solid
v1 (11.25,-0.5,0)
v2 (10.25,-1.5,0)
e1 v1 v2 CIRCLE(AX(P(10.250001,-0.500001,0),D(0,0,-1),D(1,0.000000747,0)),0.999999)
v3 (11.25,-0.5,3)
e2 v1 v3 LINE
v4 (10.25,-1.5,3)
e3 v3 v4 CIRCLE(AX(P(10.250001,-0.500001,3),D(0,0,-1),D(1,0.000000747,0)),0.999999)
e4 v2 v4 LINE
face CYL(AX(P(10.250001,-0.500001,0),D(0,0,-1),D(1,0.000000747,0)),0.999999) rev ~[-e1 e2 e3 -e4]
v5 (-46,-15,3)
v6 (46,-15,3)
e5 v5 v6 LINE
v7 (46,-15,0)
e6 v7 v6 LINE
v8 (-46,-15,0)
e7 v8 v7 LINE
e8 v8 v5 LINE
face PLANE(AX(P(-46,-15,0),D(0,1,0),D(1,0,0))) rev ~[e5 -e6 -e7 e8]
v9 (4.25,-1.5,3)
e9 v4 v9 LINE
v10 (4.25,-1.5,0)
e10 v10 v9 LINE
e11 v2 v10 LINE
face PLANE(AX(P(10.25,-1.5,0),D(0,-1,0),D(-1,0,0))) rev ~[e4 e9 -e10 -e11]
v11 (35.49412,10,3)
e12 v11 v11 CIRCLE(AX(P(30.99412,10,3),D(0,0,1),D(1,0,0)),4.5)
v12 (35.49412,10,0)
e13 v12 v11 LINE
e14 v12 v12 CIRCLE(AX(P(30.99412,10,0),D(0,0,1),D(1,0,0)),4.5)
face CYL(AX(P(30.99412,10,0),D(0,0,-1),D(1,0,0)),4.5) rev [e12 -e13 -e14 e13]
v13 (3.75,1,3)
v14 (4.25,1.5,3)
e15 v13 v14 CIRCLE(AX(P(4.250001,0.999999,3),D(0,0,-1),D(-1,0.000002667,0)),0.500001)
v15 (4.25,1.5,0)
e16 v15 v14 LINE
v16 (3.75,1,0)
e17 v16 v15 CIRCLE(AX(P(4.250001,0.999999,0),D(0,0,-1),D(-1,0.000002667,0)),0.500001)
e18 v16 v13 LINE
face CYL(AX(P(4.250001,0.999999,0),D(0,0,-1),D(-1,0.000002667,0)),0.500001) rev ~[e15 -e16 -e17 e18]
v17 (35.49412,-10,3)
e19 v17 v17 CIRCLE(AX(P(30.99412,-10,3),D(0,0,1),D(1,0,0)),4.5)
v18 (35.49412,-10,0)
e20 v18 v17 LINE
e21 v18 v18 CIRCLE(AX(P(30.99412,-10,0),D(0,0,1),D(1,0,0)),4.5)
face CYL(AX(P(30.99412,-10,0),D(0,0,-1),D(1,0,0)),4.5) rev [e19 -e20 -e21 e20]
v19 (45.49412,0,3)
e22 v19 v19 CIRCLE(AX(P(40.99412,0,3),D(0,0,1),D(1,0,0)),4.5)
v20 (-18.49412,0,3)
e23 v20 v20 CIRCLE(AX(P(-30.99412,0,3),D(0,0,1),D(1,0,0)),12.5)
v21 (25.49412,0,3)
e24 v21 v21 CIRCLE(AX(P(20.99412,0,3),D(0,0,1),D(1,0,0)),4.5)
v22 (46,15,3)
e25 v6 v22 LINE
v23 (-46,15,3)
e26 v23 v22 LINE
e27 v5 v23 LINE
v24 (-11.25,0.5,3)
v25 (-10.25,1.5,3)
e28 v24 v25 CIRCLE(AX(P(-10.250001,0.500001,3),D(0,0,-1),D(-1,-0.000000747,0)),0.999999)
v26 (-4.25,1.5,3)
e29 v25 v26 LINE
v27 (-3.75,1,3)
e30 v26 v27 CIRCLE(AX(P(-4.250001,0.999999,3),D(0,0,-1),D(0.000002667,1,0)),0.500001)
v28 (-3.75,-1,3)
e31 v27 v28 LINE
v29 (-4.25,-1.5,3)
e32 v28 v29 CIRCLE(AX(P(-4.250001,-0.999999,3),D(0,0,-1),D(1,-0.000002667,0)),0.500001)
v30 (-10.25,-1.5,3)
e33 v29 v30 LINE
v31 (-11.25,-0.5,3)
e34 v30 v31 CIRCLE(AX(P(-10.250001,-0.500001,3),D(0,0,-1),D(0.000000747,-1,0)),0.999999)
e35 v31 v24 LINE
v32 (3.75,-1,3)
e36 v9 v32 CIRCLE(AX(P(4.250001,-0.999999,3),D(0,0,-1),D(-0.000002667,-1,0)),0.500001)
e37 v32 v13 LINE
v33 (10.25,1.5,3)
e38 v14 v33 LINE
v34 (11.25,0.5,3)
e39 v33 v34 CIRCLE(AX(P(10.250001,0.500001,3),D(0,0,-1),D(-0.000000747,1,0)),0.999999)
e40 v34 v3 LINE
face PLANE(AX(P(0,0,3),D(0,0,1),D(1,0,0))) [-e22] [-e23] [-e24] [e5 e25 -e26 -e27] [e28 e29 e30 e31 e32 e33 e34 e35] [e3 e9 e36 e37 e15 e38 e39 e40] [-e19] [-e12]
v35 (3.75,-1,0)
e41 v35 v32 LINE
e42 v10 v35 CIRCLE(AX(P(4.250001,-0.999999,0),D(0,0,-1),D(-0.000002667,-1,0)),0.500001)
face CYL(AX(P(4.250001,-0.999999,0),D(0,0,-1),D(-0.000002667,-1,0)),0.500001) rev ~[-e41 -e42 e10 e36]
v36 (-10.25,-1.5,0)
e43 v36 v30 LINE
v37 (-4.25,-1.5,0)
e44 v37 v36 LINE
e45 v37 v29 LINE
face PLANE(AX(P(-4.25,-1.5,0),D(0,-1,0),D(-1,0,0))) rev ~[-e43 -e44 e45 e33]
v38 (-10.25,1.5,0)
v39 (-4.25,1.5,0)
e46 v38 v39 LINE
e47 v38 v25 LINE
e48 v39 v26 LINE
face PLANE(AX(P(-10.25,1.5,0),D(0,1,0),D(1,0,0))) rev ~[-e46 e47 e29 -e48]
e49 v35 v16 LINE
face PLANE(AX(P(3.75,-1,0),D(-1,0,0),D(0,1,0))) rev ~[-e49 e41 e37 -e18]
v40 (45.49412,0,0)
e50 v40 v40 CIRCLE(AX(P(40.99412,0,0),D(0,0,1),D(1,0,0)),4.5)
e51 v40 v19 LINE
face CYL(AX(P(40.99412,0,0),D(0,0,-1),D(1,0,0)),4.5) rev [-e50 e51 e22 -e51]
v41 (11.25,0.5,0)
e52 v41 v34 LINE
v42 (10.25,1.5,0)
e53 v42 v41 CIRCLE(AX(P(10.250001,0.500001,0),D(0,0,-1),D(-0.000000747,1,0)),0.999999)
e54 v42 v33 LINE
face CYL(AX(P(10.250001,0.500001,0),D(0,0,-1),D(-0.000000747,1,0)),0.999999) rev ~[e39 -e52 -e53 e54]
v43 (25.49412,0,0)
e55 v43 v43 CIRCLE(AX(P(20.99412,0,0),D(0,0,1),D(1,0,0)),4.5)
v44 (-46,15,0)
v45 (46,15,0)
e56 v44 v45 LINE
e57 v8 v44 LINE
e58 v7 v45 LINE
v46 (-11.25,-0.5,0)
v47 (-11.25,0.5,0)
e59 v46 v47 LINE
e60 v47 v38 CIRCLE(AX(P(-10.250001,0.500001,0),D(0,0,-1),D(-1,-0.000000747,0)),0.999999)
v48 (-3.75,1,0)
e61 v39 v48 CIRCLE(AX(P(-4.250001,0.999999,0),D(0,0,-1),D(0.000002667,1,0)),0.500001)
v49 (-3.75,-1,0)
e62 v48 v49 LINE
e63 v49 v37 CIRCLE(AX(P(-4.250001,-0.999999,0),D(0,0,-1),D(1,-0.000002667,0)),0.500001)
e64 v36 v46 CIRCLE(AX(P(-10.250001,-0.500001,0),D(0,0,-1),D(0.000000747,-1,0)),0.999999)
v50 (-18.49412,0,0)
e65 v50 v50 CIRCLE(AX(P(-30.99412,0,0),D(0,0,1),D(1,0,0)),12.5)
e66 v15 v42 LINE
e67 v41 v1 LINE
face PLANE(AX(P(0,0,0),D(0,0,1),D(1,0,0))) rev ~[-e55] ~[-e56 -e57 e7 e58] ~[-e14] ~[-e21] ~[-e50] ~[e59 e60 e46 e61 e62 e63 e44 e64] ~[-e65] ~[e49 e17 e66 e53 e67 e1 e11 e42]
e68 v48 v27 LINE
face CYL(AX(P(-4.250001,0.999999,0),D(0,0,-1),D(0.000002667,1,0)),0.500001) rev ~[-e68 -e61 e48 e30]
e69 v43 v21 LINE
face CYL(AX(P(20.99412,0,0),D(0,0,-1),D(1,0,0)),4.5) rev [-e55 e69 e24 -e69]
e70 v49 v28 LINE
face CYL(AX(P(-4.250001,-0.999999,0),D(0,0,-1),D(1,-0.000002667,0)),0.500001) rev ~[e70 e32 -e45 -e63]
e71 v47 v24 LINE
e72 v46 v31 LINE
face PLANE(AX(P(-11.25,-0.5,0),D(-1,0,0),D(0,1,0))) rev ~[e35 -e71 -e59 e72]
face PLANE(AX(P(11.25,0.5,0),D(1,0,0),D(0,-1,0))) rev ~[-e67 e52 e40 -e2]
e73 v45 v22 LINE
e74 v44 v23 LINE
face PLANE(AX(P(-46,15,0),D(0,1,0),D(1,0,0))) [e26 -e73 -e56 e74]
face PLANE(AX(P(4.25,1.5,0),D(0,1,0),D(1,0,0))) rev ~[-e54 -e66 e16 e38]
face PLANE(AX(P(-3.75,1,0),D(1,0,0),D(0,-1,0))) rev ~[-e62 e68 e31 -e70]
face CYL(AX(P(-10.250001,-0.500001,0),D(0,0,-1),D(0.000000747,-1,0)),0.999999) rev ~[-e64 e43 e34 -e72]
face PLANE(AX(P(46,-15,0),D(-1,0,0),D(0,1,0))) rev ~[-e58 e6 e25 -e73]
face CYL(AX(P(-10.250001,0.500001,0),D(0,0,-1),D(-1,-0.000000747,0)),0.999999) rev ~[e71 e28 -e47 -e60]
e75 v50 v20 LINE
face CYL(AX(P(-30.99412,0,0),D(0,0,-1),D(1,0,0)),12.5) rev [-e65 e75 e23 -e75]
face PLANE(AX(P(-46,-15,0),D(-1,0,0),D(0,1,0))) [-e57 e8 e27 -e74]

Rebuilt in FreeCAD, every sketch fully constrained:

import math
import FreeCAD as App
import Part
import Sketcher
from FreeCAD import Vector

doc = App.newDocument("Part")
body = doc.addObject("PartDesign::Body", "Body")

sketch1 = body.newObject("Sketcher::SketchObject", "Sketch")
sketch1.AttachmentSupport = (doc.getObject("XY_Plane"), [""])
sketch1.MapMode = "FlatFace"
sketch1.addGeometry([
    Part.LineSegment(Vector(-46, 15, 0), Vector(-46, -15, 0)),
    Part.LineSegment(Vector(-46, -15, 0), Vector(46, -15, 0)),
    Part.LineSegment(Vector(46, -15, 0), Vector(46, 15, 0)),
    Part.LineSegment(Vector(46, 15, 0), Vector(-46, 15, 0)),
    Part.Circle(Vector(-30.99412, 0, 0), Vector(0, 0, 1), 12.5),
    Part.LineSegment(Vector(-3.75, 1, 0), Vector(-3.75, -1, 0)),
    Part.ArcOfCircle(Part.Circle(Vector(-4.250001, -0.999999, 0), Vector(0, 0, 1), 0.500001), math.radians(-89.999847), math.radians(-0.000153)),
    Part.LineSegment(Vector(-4.25, -1.5, 0), Vector(-10.25, -1.5, 0)),
    Part.ArcOfCircle(Part.Circle(Vector(-10.250001, -0.500001, 0), Vector(0, 0, 1), 0.999999), math.radians(179.999957), math.radians(270.000043)),
    Part.LineSegment(Vector(-11.25, -0.5, 0), Vector(-11.25, 0.5, 0)),
    Part.ArcOfCircle(Part.Circle(Vector(-10.250001, 0.500001, 0), Vector(0, 0, 1), 0.999999), math.radians(89.999957), math.radians(180.000043)),
    Part.LineSegment(Vector(-10.25, 1.5, 0), Vector(-4.25, 1.5, 0)),
    Part.ArcOfCircle(Part.Circle(Vector(-4.250001, 0.999999, 0), Vector(0, 0, 1), 0.500001), math.radians(0.000153), math.radians(89.999847)),
    Part.Circle(Vector(30.99412, -10, 0), Vector(0, 0, 1), 4.5),
    Part.ArcOfCircle(Part.Circle(Vector(10.250001, -0.500001, 0), Vector(0, 0, 1), 0.999999), math.radians(-90.000043), math.radians(0.000043)),
    Part.LineSegment(Vector(10.25, -1.5, 0), Vector(4.25, -1.5, 0)),
    Part.ArcOfCircle(Part.Circle(Vector(4.250001, -0.999999, 0), Vector(0, 0, 1), 0.500001), math.radians(-179.999847), math.radians(-90.000153)),
    Part.LineSegment(Vector(3.75, -1, 0), Vector(3.75, 1, 0)),
    Part.ArcOfCircle(Part.Circle(Vector(4.250001, 0.999999, 0), Vector(0, 0, 1), 0.500001), math.radians(90.000153), math.radians(179.999847)),
    Part.LineSegment(Vector(4.25, 1.5, 0), Vector(10.25, 1.5, 0)),
    Part.ArcOfCircle(Part.Circle(Vector(10.250001, 0.500001, 0), Vector(0, 0, 1), 0.999999), math.radians(-0.000043), math.radians(90.000043)),
    Part.LineSegment(Vector(11.25, 0.5, 0), Vector(11.25, -0.5, 0)),
    Part.Circle(Vector(20.99412, 0, 0), Vector(0, 0, 1), 4.5),
    Part.Circle(Vector(40.99412, 0, 0), Vector(0, 0, 1), 4.5),
    Part.Circle(Vector(30.99412, 10, 0), Vector(0, 0, 1), 4.5),
], False)
sketch1.addConstraint([
    Sketcher.Constraint("Coincident", 0, 2, 1, 1),
    Sketcher.Constraint("Coincident", 1, 2, 2, 1),
    Sketcher.Constraint("Coincident", 2, 2, 3, 1),
    Sketcher.Constraint("Coincident", 3, 2, 0, 1),
    Sketcher.Constraint("Coincident", 5, 2, 6, 2),
    Sketcher.Constraint("Coincident", 6, 1, 7, 1),
    Sketcher.Constraint("Tangent", 7, 2, 8, 2),
    Sketcher.Constraint("Tangent", 8, 1, 9, 1),
    Sketcher.Constraint("Tangent", 9, 2, 10, 2),
    Sketcher.Constraint("Tangent", 10, 1, 11, 1),
    Sketcher.Constraint("Coincident", 11, 2, 12, 2),
    Sketcher.Constraint("Coincident", 12, 1, 5, 1),
    Sketcher.Constraint("Tangent", 14, 1, 15, 1),
    Sketcher.Constraint("Coincident", 15, 2, 16, 2),
    Sketcher.Constraint("Coincident", 16, 1, 17, 1),
    Sketcher.Constraint("Coincident", 17, 2, 18, 2),
    Sketcher.Constraint("Coincident", 18, 1, 19, 1),
    Sketcher.Constraint("Tangent", 19, 2, 20, 2),
    Sketcher.Constraint("Tangent", 20, 1, 21, 1),
    Sketcher.Constraint("Tangent", 21, 2, 14, 2),
    Sketcher.Constraint("Vertical", 0),
    Sketcher.Constraint("Horizontal", 1),
    Sketcher.Constraint("Vertical", 2),
    Sketcher.Constraint("Horizontal", 3),
    Sketcher.Constraint("Vertical", 5),
    Sketcher.Constraint("Horizontal", 7),
    Sketcher.Constraint("Vertical", 9),
    Sketcher.Constraint("Horizontal", 11),
    Sketcher.Constraint("Horizontal", 15),
    Sketcher.Constraint("Vertical", 17),
    Sketcher.Constraint("Horizontal", 19),
    Sketcher.Constraint("Vertical", 21),
    Sketcher.Constraint("Equal", 8, 10),
    Sketcher.Constraint("Equal", 6, 12),
    Sketcher.Constraint("Equal", 10, 14),
    Sketcher.Constraint("Equal", 12, 16),
    Sketcher.Constraint("Equal", 16, 18),
    Sketcher.Constraint("Equal", 14, 20),
    Sketcher.Constraint("Equal", 13, 22),
    Sketcher.Constraint("Equal", 22, 23),
    Sketcher.Constraint("Equal", 23, 24),
    Sketcher.Constraint("Symmetric", 10, 3, 14, 3, -1, 1),
    Sketcher.Constraint("Symmetric", 6, 3, 18, 3, -1, 1),
    Sketcher.Constraint("Symmetric", 0, 2, 2, 2, -1, 1),
    Sketcher.Constraint("Symmetric", 6, 1, 15, 2, -2),
    Sketcher.Constraint("Symmetric", 13, 3, 24, 3, -1),
    Sketcher.Constraint("PointOnObject", 4, 3, -1),
    Sketcher.Constraint("PointOnObject", 22, 3, -1),
    Sketcher.Constraint("PointOnObject", 23, 3, -1),
    Sketcher.Constraint("Horizontal", 16, 3, 5, 2),
    Sketcher.Constraint("Horizontal", 18, 3, 12, 1),
    Sketcher.Constraint("Horizontal", 5, 2, 16, 1),
    Sketcher.Constraint("Horizontal", 12, 1, 17, 2),
    Sketcher.Constraint("Vertical", 12, 3, 6, 1),
    Sketcher.Constraint("Vertical", 6, 1, 11, 2),
    Sketcher.Constraint("Vertical", 15, 2, 18, 1),
    Sketcher.Constraint("Diameter", 4, 25.0),
    Sketcher.Constraint("Diameter", 13, 9.0),
    Sketcher.Constraint("Radius", 8, 0.999999),
    Sketcher.Constraint("Radius", 6, 0.500001),
    Sketcher.Constraint("DistanceX", 1, 1, 1, 2, 92.0),
    Sketcher.Constraint("DistanceX", 7, 2, 7, 1, 6.0),
    Sketcher.Constraint("DistanceY", 0, 2, 0, 1, 30.0),
    Sketcher.Constraint("DistanceY", 5, 2, 5, 1, 2.0),
    Sketcher.Constraint("DistanceY", 13, 3, -1, 1, 10.0),
    Sketcher.Constraint("DistanceX", 22, 3, 13, 3, 10.0),
    Sketcher.Constraint("DistanceX", 13, 3, 23, 3, 10.0),
    Sketcher.Constraint("DistanceX", 5, 2, 16, 3, 8.000001),
    Sketcher.Constraint("DistanceX", 4, 3, -1, 1, 30.99412),
    Sketcher.Constraint("DistanceX", -1, 1, 13, 3, 30.99412),
])
pad1 = body.newObject("PartDesign::Pad", "Pad")
pad1.Profile = sketch1
pad1.Length = 3

doc.recompute()
